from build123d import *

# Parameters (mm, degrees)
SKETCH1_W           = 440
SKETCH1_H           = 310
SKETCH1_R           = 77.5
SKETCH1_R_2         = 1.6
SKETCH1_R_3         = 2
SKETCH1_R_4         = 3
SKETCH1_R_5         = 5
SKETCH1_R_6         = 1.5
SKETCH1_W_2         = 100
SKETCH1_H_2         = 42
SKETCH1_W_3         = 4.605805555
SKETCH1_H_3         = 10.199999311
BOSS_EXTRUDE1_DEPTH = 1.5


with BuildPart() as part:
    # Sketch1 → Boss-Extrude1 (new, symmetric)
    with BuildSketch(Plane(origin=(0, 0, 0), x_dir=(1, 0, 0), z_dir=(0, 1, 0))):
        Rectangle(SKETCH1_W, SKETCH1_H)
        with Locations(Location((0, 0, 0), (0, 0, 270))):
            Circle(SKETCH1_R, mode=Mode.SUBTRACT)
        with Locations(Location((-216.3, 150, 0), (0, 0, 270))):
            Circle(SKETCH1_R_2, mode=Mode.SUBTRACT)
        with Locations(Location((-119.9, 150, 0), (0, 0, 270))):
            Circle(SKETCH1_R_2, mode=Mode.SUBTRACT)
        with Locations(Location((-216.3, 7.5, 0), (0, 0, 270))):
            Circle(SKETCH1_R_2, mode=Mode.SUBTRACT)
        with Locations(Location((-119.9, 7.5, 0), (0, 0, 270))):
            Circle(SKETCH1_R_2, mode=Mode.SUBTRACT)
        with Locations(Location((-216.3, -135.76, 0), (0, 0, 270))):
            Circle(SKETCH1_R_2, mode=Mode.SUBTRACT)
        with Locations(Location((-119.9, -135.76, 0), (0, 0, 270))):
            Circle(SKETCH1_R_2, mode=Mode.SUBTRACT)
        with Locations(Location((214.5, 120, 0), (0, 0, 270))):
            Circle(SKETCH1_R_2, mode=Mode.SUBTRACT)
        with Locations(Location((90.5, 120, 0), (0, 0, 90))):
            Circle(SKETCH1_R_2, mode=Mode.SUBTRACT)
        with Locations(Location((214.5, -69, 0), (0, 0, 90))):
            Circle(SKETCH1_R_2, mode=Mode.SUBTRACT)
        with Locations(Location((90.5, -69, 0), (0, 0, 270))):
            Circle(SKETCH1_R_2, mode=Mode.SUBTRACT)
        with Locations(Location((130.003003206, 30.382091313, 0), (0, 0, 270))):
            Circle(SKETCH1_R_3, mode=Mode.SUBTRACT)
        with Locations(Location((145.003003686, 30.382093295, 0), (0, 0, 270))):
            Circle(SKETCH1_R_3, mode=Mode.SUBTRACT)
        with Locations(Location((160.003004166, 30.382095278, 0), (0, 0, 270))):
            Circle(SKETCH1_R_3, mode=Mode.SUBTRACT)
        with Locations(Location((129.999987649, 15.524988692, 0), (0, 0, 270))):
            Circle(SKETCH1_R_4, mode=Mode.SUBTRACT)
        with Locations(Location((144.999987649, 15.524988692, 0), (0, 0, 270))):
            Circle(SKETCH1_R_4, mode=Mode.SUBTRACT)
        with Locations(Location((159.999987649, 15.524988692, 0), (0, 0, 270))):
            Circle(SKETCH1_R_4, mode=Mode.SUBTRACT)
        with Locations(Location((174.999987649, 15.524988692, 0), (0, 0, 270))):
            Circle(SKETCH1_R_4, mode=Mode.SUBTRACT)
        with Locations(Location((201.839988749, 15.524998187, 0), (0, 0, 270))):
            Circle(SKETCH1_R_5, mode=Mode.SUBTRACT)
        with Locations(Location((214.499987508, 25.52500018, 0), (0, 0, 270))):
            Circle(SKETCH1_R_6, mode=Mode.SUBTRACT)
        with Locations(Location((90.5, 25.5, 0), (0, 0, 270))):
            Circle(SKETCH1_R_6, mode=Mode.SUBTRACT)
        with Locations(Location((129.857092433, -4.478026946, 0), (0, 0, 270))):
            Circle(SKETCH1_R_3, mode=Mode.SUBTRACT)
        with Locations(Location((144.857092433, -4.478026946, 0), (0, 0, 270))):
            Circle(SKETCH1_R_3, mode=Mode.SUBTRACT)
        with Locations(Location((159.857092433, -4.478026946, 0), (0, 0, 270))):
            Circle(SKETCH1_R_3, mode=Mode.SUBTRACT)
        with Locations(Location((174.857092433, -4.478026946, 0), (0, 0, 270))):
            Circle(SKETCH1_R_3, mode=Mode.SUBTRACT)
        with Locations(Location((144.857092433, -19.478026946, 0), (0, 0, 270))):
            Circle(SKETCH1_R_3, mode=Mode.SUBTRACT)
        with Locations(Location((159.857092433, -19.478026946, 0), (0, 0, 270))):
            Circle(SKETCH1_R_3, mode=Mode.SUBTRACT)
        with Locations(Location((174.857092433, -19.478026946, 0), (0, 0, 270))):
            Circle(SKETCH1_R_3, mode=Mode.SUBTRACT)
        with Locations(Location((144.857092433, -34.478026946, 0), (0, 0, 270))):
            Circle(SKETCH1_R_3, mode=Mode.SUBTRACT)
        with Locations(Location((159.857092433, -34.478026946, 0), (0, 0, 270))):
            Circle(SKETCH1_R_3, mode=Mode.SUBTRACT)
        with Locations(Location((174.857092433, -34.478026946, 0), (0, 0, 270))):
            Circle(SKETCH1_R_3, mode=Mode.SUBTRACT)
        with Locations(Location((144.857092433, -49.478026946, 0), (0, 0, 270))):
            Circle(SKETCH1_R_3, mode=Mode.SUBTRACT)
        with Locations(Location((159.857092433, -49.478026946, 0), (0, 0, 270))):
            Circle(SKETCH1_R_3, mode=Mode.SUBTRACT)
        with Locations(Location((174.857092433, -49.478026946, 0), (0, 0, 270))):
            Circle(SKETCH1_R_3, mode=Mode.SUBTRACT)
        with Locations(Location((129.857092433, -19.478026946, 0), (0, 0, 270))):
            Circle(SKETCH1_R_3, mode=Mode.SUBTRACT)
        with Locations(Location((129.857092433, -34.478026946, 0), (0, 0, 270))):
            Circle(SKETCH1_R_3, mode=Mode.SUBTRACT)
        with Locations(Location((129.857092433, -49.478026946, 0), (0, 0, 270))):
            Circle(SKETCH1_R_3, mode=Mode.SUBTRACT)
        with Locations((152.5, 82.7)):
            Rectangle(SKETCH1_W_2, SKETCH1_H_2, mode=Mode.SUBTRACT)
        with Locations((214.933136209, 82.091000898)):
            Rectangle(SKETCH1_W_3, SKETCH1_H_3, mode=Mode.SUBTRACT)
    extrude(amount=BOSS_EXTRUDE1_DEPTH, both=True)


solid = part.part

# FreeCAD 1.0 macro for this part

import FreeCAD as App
import Part
import Sketcher

V = App.Vector
Q = App.Units.Quantity

doc = App.newDocument("Part")
body = doc.addObject("PartDesign::Body", "Body")

# Sketch on XZ plane
sketch1 = doc.addObject("Sketcher::SketchObject", "Sketch")
body.addObject(sketch1)
sketch1.AttachmentSupport = (doc.XZ_Plane, [""])
sketch1.MapMode = "FlatFace"
sketch1.addGeometry([
    Part.LineSegment(V(-220, -155, 0), V(-220, 155, 0)),  # 0
    Part.LineSegment(V(-220, 155, 0), V(220, 155, 0)),  # 1
    Part.LineSegment(V(220, 155, 0), V(220, -155, 0)),  # 2
    Part.LineSegment(V(220, -155, 0), V(-220, -155, 0)),  # 3
    Part.Circle(V(-216.3, 135.8, 0), V(0, 0, 1), 1.6),  # 4
    Part.Circle(V(-119.9, 135.8, 0), V(0, 0, 1), 1.6),  # 5
    Part.Circle(V(90.5, 69, 0), V(0, 0, 1), 1.6),  # 6
    Part.Circle(V(214.5, 69, 0), V(0, 0, 1), 1.6),  # 7
    Part.Circle(V(0, 0, 0), V(0, 0, 1), 77.5),  # 8
    Part.Circle(V(129.9, 49.5, 0), V(0, 0, 1), 2),  # 9
    Part.Circle(V(144.9, 49.5, 0), V(0, 0, 1), 2),  # 10
    Part.Circle(V(159.9, 49.5, 0), V(0, 0, 1), 2),  # 11
    Part.Circle(V(129.9, 34.5, 0), V(0, 0, 1), 2),  # 12
    Part.Circle(V(144.9, 34.5, 0), V(0, 0, 1), 2),  # 13
    Part.Circle(V(159.9, 34.5, 0), V(0, 0, 1), 2),  # 14
    Part.Circle(V(174.9, 49.5, 0), V(0, 0, 1), 2),  # 15
    Part.Circle(V(174.9, 34.5, 0), V(0, 0, 1), 2),  # 16
    Part.Circle(V(129.9, 19.5, 0), V(0, 0, 1), 2),  # 17
    Part.Circle(V(144.9, 19.5, 0), V(0, 0, 1), 2),  # 18
    Part.Circle(V(159.9, 19.5, 0), V(0, 0, 1), 2),  # 19
    Part.Circle(V(129.9, 4.5, 0), V(0, 0, 1), 2),  # 20
    Part.Circle(V(144.9, 4.5, 0), V(0, 0, 1), 2),  # 21
    Part.Circle(V(159.9, 4.5, 0), V(0, 0, 1), 2),  # 22
    Part.Circle(V(174.9, 19.5, 0), V(0, 0, 1), 2),  # 23
    Part.Circle(V(174.9, 4.5, 0), V(0, 0, 1), 2),  # 24
    Part.Circle(V(-216.3, -7.5, 0), V(0, 0, 1), 1.6),  # 25
    Part.Circle(V(-119.9, -7.5, 0), V(0, 0, 1), 1.6),  # 26
    Part.Circle(V(-216.3, -150, 0), V(0, 0, 1), 1.6),  # 27
    Part.Circle(V(-119.9, -150, 0), V(0, 0, 1), 1.6),  # 28
    Part.Circle(V(90.5, -25.5, 0), V(0, 0, 1), 1.5),  # 29
    Part.Circle(V(130, -15.5, 0), V(0, 0, 1), 3),  # 30
    Part.Circle(V(145, -15.5, 0), V(0, 0, 1), 3),  # 31
    Part.Circle(V(160, -15.5, 0), V(0, 0, 1), 3),  # 32
    Part.Circle(V(130, -30.4, 0), V(0, 0, 1), 2),  # 33
    Part.Circle(V(145, -30.4, 0), V(0, 0, 1), 2),  # 34
    Part.Circle(V(160, -30.4, 0), V(0, 0, 1), 2),  # 35
    Part.Circle(V(175, -15.5, 0), V(0, 0, 1), 3),  # 36
    Part.Circle(V(201.8, -15.5, 0), V(0, 0, 1), 5),  # 37
    Part.Circle(V(214.5, -25.5, 0), V(0, 0, 1), 1.5),  # 38
    Part.Circle(V(90.5, -120, 0), V(0, 0, 1), 1.6),  # 39
    Part.LineSegment(V(202.5, -61.7, 0), V(102.5, -61.7, 0)),  # 40
    Part.LineSegment(V(102.5, -61.7, 0), V(102.5, -103.7, 0)),  # 41
    Part.LineSegment(V(102.5, -103.7, 0), V(202.5, -103.7, 0)),  # 42
    Part.LineSegment(V(202.5, -103.7, 0), V(202.5, -61.7, 0)),  # 43
    Part.LineSegment(V(217.2, -77, 0), V(212.6, -77, 0)),  # 44
    Part.LineSegment(V(212.6, -77, 0), V(212.6, -87.2, 0)),  # 45
    Part.LineSegment(V(212.6, -87.2, 0), V(217.2, -87.2, 0)),  # 46
    Part.LineSegment(V(217.2, -87.2, 0), V(217.2, -77, 0)),  # 47
    Part.Circle(V(214.5, -120, 0), V(0, 0, 1), 1.6),  # 48
], False)
sketch1.addConstraint([
    Sketcher.Constraint("Coincident", 0, 2, 1, 1),
    Sketcher.Constraint("Coincident", 1, 2, 2, 1),
    Sketcher.Constraint("Coincident", 2, 2, 3, 1),
    Sketcher.Constraint("Coincident", 3, 2, 0, 1),
    Sketcher.Constraint("Coincident", 40, 2, 41, 1),
    Sketcher.Constraint("Coincident", 41, 2, 42, 1),
    Sketcher.Constraint("Coincident", 42, 2, 43, 1),
    Sketcher.Constraint("Coincident", 43, 2, 40, 1),
    Sketcher.Constraint("Coincident", 44, 2, 45, 1),
    Sketcher.Constraint("Coincident", 45, 2, 46, 1),
    Sketcher.Constraint("Coincident", 46, 2, 47, 1),
    Sketcher.Constraint("Coincident", 47, 2, 44, 1),
    Sketcher.Constraint("Vertical", 0),
    Sketcher.Constraint("Horizontal", 1),
    Sketcher.Constraint("Vertical", 2),
    Sketcher.Constraint("Horizontal", 3),
    Sketcher.Constraint("Horizontal", 40),
    Sketcher.Constraint("Vertical", 41),
    Sketcher.Constraint("Horizontal", 42),
    Sketcher.Constraint("Vertical", 43),
    Sketcher.Constraint("Horizontal", 44),
    Sketcher.Constraint("Vertical", 45),
    Sketcher.Constraint("Horizontal", 46),
    Sketcher.Constraint("Vertical", 47),
    Sketcher.Constraint("Coincident", 8, 3, -1, 1),
    Sketcher.Constraint("Equal", 4, 5),
    Sketcher.Constraint("Equal", 5, 6),
    Sketcher.Constraint("Equal", 6, 7),
    Sketcher.Constraint("Equal", 9, 10),
    Sketcher.Constraint("Equal", 10, 11),
    Sketcher.Constraint("Equal", 11, 12),
    Sketcher.Constraint("Equal", 12, 13),
    Sketcher.Constraint("Equal", 13, 14),
    Sketcher.Constraint("Equal", 14, 15),
    Sketcher.Constraint("Equal", 15, 16),
    Sketcher.Constraint("Equal", 16, 17),
    Sketcher.Constraint("Equal", 17, 18),
    Sketcher.Constraint("Equal", 18, 19),
    Sketcher.Constraint("Equal", 19, 20),
    Sketcher.Constraint("Equal", 20, 21),
    Sketcher.Constraint("Equal", 21, 22),
    Sketcher.Constraint("Equal", 22, 23),
    Sketcher.Constraint("Equal", 23, 24),
    Sketcher.Constraint("Equal", 7, 25),
    Sketcher.Constraint("Equal", 25, 26),
    Sketcher.Constraint("Equal", 26, 27),
    Sketcher.Constraint("Equal", 27, 28),
    Sketcher.Constraint("Equal", 30, 31),
    Sketcher.Constraint("Equal", 31, 32),
    Sketcher.Constraint("Equal", 24, 33),
    Sketcher.Constraint("Equal", 33, 34),
    Sketcher.Constraint("Equal", 34, 35),
    Sketcher.Constraint("Equal", 32, 36),
    Sketcher.Constraint("Equal", 29, 38),
    Sketcher.Constraint("Equal", 28, 39),
    Sketcher.Constraint("Equal", 39, 48),
    Sketcher.Constraint("Symmetric", 0, 2, 2, 2, -1, 1),
    Sketcher.Constraint("Horizontal", 4, 3, 5, 3),
    Sketcher.Constraint("Horizontal", 6, 3, 7, 3),
    Sketcher.Constraint("Horizontal", 9, 3, 10, 3),
    Sketcher.Constraint("Horizontal", 10, 3, 11, 3),
    Sketcher.Constraint("Horizontal", 12, 3, 13, 3),
    Sketcher.Constraint("Horizontal", 13, 3, 14, 3),
    Sketcher.Constraint("Horizontal", 11, 3, 15, 3),
    Sketcher.Constraint("Horizontal", 14, 3, 16, 3),
    Sketcher.Constraint("Horizontal", 17, 3, 18, 3),
    Sketcher.Constraint("Horizontal", 18, 3, 19, 3),
    Sketcher.Constraint("Horizontal", 20, 3, 21, 3),
    Sketcher.Constraint("Horizontal", 21, 3, 22, 3),
    Sketcher.Constraint("Horizontal", 19, 3, 23, 3),
    Sketcher.Constraint("Horizontal", 22, 3, 24, 3),
    Sketcher.Constraint("Horizontal", 25, 3, 26, 3),
    Sketcher.Constraint("Horizontal", 27, 3, 28, 3),
    Sketcher.Constraint("Horizontal", 30, 3, 31, 3),
    Sketcher.Constraint("Horizontal", 31, 3, 32, 3),
    Sketcher.Constraint("Horizontal", 33, 3, 34, 3),
    Sketcher.Constraint("Horizontal", 34, 3, 35, 3),
    Sketcher.Constraint("Horizontal", 32, 3, 36, 3),
    Sketcher.Constraint("Horizontal", 39, 3, 48, 3),
    Sketcher.Constraint("Vertical", 9, 3, 12, 3),
    Sketcher.Constraint("Vertical", 10, 3, 13, 3),
    Sketcher.Constraint("Vertical", 11, 3, 14, 3),
    Sketcher.Constraint("Vertical", 15, 3, 16, 3),
    Sketcher.Constraint("Vertical", 12, 3, 17, 3),
    Sketcher.Constraint("Vertical", 13, 3, 18, 3),
    Sketcher.Constraint("Vertical", 14, 3, 19, 3),
    Sketcher.Constraint("Vertical", 17, 3, 20, 3),
    Sketcher.Constraint("Vertical", 18, 3, 21, 3),
    Sketcher.Constraint("Vertical", 19, 3, 22, 3),
    Sketcher.Constraint("Vertical", 16, 3, 23, 3),
    Sketcher.Constraint("Vertical", 23, 3, 24, 3),
    Sketcher.Constraint("Vertical", 4, 3, 25, 3),
    Sketcher.Constraint("Vertical", 5, 3, 26, 3),
    Sketcher.Constraint("Vertical", 25, 3, 27, 3),
    Sketcher.Constraint("Vertical", 26, 3, 28, 3),
    Sketcher.Constraint("Vertical", 6, 3, 29, 3),
    Sketcher.Constraint("Vertical", 29, 3, 39, 3),
    Sketcher.Constraint("Vertical", 7, 3, 48, 3),
    Sketcher.Constraint("Diameter", 8, Q("155 mm")),
    Sketcher.Constraint("Diameter", 9, Q("4 mm")),
    Sketcher.Constraint("Diameter", 29, Q("3 mm")),
    Sketcher.Constraint("Diameter", 30, Q("6 mm")),
    Sketcher.Constraint("Diameter", 37, Q("10 mm")),
    Sketcher.Constraint("Diameter", 4, Q("3.2 mm")),
    Sketcher.Constraint("DistanceX", 1, 1, 1, 2, Q("440 mm")),
    Sketcher.Constraint("DistanceX", 40, 2, 40, 1, Q("100 mm")),
    Sketcher.Constraint("DistanceY", 0, 1, 0, 2, Q("310 mm")),
    Sketcher.Constraint("DistanceY", 41, 2, 41, 1, Q("42 mm")),
    Sketcher.Constraint("DistanceY", 45, 2, 45, 1, Q("10.199999 mm")),
    Sketcher.Constraint("DistanceY", -1, 1, 6, 3, Q("69 mm")),
    Sketcher.Constraint("DistanceY", 27, 3, -1, 1, Q("150 mm")),
    Sketcher.Constraint("DistanceY", 39, 3, -1, 1, Q("120 mm")),
    Sketcher.Constraint("DistanceX", 6, 3, 7, 3, Q("124 mm")),
    Sketcher.Constraint("DistanceX", 9, 3, 10, 3, Q("15 mm")),
    Sketcher.Constraint("DistanceX", 10, 3, 11, 3, Q("15 mm")),
    Sketcher.Constraint("DistanceY", 12, 3, 9, 3, Q("15 mm")),
    Sketcher.Constraint("DistanceX", 11, 3, 15, 3, Q("15 mm")),
    Sketcher.Constraint("DistanceY", 17, 3, 12, 3, Q("15 mm")),
    Sketcher.Constraint("DistanceY", 20, 3, 17, 3, Q("15 mm")),
    Sketcher.Constraint("DistanceX", 30, 3, 31, 3, Q("15 mm")),
    Sketcher.Constraint("DistanceX", 31, 3, 32, 3, Q("15 mm")),
    Sketcher.Constraint("DistanceX", 33, 3, 34, 3, Q("15 mm")),
    Sketcher.Constraint("DistanceX", 34, 3, 35, 3, Q("15 mm")),
    Sketcher.Constraint("DistanceX", 32, 3, 36, 3, Q("15 mm")),
    Sketcher.Constraint("DistanceY", 38, 3, 37, 3, Q("10.000002 mm")),
    Sketcher.Constraint("DistanceX", 29, 3, 40, 2, Q("12 mm")),
    Sketcher.Constraint("DistanceX", 4, 3, -1, 1, Q("216.3 mm")),
    Sketcher.Constraint("DistanceX", 5, 3, -1, 1, Q("119.9 mm")),
    Sketcher.Constraint("DistanceX", -1, 1, 6, 3, Q("90.5 mm")),
    Sketcher.Constraint("DistanceY", 25, 3, -1, 1, Q("7.5 mm")),
    Sketcher.Constraint("DistanceY", 29, 3, -1, 1, Q("25.5 mm")),
    Sketcher.Constraint("DistanceY", 40, 2, -1, 1, Q("61.7 mm")),
    Sketcher.Constraint("DistanceX", 36, 3, 38, 3, Q("39.5 mm")),
    Sketcher.Constraint("DistanceY", -1, 1, 4, 3, Q("135.76 mm")),
    Sketcher.Constraint("DistanceX", 36, 3, 37, 3, Q("26.840001 mm")),
    Sketcher.Constraint("DistanceY", 37, 3, -1, 1, Q("15.524998 mm")),
    Sketcher.Constraint("DistanceY", 44, 2, -1, 1, Q("76.991001 mm")),
    Sketcher.Constraint("DistanceX", 44, 2, 44, 1, Q("4.605806 mm")),
    Sketcher.Constraint("DistanceY", 30, 3, -1, 1, Q("15.524989 mm")),
    Sketcher.Constraint("DistanceY", 33, 3, -1, 1, Q("30.382091 mm")),
    Sketcher.Constraint("DistanceX", -1, 1, 37, 3, Q("201.839989 mm")),
    Sketcher.Constraint("DistanceX", -1, 1, 46, 2, Q("217.236039 mm")),
    Sketcher.Constraint("DistanceX", 20, 3, 33, 3, Q("0.145911 mm")),
    Sketcher.Constraint("DistanceY", 33, 3, 20, 3, Q("34.860118 mm")),
    Sketcher.Constraint("DistanceX", -1, 1, 9, 3, Q("129.857092 mm")),
])
pad1 = doc.addObject("PartDesign::Pad", "Pad")
body.addObject(pad1)
pad1.Profile = sketch1
pad1.Length = 3
pad1.Midplane = True

doc.recompute()
